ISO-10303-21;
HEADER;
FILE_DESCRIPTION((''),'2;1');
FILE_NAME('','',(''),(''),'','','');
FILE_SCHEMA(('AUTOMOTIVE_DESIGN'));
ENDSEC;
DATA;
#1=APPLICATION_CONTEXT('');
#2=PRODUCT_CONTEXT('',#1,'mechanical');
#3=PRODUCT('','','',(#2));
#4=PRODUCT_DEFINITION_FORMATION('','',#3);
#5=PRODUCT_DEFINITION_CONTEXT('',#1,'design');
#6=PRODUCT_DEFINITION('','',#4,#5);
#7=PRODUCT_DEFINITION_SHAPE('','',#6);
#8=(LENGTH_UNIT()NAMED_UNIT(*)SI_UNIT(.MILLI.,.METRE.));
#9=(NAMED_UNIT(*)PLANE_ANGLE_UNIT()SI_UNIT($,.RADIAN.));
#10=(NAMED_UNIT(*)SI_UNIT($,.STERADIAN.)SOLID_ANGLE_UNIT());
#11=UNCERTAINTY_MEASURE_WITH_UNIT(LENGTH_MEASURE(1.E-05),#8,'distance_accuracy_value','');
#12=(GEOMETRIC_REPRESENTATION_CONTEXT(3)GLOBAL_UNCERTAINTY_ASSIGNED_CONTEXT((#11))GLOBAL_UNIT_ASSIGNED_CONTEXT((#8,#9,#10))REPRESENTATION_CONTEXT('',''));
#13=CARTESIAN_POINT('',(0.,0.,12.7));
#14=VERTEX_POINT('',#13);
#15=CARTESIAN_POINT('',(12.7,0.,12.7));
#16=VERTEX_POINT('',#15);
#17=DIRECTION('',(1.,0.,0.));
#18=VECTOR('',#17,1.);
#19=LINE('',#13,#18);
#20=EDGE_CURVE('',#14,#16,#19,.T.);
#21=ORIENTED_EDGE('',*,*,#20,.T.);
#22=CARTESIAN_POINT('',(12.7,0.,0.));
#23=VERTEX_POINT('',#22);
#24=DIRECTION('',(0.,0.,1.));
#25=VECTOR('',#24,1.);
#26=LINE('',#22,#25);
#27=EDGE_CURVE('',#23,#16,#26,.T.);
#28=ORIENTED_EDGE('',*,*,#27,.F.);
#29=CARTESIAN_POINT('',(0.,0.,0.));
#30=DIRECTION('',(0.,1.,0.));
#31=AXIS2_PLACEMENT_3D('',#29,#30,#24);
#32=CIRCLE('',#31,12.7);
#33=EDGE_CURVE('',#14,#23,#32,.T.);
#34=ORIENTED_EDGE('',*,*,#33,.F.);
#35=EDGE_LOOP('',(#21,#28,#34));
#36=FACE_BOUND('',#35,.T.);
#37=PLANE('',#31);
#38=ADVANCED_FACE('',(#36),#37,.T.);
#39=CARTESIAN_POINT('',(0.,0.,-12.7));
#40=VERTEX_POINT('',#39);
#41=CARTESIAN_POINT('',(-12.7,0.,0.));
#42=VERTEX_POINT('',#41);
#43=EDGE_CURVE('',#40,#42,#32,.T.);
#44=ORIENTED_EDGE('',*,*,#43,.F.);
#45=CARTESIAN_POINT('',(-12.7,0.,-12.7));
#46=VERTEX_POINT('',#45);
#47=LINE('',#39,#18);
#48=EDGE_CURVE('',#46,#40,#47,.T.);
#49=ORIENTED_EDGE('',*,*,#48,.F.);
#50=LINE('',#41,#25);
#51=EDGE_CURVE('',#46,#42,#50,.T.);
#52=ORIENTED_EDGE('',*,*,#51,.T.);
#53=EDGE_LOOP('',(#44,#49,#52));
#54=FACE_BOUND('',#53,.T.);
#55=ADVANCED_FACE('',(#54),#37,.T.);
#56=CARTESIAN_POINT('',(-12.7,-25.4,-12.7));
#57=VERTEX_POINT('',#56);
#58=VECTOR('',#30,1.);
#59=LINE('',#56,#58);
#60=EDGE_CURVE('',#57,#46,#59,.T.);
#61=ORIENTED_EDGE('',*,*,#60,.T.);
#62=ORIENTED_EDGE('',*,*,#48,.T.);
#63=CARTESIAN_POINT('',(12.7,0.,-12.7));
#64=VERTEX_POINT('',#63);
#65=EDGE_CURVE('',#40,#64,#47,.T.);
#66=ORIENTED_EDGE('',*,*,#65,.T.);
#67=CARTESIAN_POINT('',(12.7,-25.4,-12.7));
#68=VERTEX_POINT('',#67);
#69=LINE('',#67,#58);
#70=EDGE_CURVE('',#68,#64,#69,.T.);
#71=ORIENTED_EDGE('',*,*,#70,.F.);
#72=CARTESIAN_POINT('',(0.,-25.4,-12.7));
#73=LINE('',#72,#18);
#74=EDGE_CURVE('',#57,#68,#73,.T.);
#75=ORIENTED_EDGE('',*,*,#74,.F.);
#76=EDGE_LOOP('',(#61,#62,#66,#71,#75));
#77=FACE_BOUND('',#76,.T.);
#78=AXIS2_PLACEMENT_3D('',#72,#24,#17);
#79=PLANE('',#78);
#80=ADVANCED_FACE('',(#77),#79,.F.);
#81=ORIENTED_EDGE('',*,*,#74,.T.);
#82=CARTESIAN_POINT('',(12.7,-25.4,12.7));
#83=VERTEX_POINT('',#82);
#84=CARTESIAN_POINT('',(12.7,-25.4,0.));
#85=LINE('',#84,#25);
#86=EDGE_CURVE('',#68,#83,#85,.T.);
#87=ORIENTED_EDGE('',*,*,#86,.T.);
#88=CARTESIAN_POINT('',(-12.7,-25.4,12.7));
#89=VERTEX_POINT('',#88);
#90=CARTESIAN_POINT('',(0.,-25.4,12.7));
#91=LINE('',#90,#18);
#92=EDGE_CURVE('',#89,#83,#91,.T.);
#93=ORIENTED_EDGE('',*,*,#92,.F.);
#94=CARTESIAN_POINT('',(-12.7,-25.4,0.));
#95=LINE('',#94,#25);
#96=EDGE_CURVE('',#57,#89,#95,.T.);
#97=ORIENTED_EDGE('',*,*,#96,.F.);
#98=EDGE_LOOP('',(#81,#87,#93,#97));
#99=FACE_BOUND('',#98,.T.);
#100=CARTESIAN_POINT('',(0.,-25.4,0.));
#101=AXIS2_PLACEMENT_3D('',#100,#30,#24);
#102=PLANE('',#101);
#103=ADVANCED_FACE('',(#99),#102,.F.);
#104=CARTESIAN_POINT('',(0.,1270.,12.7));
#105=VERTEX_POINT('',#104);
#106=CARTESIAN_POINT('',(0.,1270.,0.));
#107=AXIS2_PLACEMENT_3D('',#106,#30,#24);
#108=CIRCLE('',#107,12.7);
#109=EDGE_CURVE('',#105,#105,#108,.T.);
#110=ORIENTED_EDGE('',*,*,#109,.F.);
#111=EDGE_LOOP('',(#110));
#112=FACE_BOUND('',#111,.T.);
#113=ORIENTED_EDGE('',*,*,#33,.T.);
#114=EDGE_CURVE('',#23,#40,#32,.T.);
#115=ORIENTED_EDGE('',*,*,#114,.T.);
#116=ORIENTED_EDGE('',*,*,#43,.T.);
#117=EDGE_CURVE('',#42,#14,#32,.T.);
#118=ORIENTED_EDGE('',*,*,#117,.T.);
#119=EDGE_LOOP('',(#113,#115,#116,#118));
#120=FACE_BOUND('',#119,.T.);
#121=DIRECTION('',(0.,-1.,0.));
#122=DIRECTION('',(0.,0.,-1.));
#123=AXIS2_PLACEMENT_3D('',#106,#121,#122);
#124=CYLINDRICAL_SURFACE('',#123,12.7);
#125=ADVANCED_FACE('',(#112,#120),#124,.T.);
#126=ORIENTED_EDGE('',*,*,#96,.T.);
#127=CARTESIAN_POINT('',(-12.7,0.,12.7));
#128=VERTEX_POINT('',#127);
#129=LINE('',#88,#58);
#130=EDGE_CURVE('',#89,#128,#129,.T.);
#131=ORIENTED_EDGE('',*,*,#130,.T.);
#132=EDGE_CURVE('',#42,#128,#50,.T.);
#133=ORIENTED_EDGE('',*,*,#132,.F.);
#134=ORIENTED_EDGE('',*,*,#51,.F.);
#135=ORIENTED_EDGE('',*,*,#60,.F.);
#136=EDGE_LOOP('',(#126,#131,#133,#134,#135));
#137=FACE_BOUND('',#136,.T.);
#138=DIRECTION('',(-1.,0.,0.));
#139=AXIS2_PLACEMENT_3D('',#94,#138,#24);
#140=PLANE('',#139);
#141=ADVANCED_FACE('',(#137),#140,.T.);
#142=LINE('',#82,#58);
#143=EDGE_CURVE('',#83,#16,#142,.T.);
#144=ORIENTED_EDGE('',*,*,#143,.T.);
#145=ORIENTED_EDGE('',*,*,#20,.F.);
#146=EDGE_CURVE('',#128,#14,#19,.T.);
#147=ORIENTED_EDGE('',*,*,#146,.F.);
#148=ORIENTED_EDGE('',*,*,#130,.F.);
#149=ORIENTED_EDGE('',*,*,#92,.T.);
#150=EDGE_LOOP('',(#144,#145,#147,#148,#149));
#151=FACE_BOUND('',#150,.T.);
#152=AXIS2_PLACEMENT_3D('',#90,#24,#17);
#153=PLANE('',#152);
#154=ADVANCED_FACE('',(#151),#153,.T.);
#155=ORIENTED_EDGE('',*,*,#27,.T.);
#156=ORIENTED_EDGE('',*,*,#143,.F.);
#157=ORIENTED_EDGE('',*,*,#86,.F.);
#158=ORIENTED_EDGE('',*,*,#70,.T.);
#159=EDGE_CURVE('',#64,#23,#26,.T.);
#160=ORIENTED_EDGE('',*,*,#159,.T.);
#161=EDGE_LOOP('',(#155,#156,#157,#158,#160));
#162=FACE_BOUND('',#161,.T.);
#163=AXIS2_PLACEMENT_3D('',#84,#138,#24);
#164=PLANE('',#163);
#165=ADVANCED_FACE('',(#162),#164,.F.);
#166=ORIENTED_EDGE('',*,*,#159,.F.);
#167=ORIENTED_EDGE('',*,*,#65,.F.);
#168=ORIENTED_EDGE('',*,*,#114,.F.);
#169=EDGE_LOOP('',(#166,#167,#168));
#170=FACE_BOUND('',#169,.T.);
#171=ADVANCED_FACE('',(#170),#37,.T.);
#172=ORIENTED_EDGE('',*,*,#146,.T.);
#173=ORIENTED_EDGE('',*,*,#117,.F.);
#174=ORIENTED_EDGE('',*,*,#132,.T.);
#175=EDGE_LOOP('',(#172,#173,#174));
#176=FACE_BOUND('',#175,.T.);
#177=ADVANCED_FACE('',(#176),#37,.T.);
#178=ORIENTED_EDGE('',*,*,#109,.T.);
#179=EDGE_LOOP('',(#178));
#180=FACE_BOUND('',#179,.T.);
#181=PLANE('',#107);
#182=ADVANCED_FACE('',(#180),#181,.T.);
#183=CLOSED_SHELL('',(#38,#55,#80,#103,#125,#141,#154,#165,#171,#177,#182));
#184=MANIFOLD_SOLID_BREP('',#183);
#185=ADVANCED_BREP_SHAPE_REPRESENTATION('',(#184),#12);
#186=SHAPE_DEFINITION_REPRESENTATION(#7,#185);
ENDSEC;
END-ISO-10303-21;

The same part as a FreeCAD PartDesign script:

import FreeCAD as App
import Part
import Sketcher
from FreeCAD import Vector
Q = App.Units.Quantity


def add_polygon(sketch, points):
    """Adds a closed chain of lines whose ends are joined by coincident constraints."""
    first, n = sketch.GeometryCount, len(points)
    for a, b in zip(points, points[1:] + points[:1]):
        sketch.addGeometry(Part.LineSegment(App.Vector(*a, 0), App.Vector(*b, 0)), False)
    for i in range(n):
        sketch.addConstraint(Sketcher.Constraint("Coincident", first + i, 2, first + (i + 1) % n, 1))

doc = App.newDocument("Part")
body = doc.addObject("PartDesign::Body", "Body")

# Sketch on XZ plane
sketch1 = body.newObject("Sketcher::SketchObject", "Sketch")
sketch1.AttachmentSupport = (doc.getObject("XZ_Plane"), [""])
sketch1.MapMode = "FlatFace"
add_polygon(sketch1, [(-13, -13), (-13, 13), (13, 13), (13, -13)])  # lines 0-3
sketch1.addConstraint(Sketcher.Constraint("Vertical", 0))
sketch1.addConstraint(Sketcher.Constraint("Horizontal", 1))
sketch1.addConstraint(Sketcher.Constraint("Vertical", 2))
sketch1.addConstraint(Sketcher.Constraint("Horizontal", 3))
sketch1.addConstraint(Sketcher.Constraint("Symmetric", 0, 2, 2, 2, -1, 1))
sketch1.addConstraint(Sketcher.Constraint("Equal", 3, 0))
sketch1.addConstraint(Sketcher.Constraint("DistanceX", 1, 1, 1, 2, Q("1 in")))
pad1 = body.newObject("PartDesign::Pad", "Pad")
pad1.Profile = sketch1
pad1.Length = Q("1 in")

# Sketch on XZ plane
sketch2 = body.newObject("Sketcher::SketchObject", "Sketch001")
sketch2.AttachmentSupport = (doc.getObject("XZ_Plane"), [""])
sketch2.MapMode = "FlatFace"
sketch2.addGeometry(Part.Circle(Vector(0, 0, 0), Vector(0, 0, 1), 13), False)
sketch2.addConstraint(Sketcher.Constraint("Coincident", 0, 3, -1, 1))
sketch2.addConstraint(Sketcher.Constraint("Diameter", 0, Q("1 in")))
pad2 = body.newObject("PartDesign::Pad", "Pad001")
pad2.Profile = sketch2
pad2.Length = Q("50 in")
pad2.Reversed = True

doc.recompute()
